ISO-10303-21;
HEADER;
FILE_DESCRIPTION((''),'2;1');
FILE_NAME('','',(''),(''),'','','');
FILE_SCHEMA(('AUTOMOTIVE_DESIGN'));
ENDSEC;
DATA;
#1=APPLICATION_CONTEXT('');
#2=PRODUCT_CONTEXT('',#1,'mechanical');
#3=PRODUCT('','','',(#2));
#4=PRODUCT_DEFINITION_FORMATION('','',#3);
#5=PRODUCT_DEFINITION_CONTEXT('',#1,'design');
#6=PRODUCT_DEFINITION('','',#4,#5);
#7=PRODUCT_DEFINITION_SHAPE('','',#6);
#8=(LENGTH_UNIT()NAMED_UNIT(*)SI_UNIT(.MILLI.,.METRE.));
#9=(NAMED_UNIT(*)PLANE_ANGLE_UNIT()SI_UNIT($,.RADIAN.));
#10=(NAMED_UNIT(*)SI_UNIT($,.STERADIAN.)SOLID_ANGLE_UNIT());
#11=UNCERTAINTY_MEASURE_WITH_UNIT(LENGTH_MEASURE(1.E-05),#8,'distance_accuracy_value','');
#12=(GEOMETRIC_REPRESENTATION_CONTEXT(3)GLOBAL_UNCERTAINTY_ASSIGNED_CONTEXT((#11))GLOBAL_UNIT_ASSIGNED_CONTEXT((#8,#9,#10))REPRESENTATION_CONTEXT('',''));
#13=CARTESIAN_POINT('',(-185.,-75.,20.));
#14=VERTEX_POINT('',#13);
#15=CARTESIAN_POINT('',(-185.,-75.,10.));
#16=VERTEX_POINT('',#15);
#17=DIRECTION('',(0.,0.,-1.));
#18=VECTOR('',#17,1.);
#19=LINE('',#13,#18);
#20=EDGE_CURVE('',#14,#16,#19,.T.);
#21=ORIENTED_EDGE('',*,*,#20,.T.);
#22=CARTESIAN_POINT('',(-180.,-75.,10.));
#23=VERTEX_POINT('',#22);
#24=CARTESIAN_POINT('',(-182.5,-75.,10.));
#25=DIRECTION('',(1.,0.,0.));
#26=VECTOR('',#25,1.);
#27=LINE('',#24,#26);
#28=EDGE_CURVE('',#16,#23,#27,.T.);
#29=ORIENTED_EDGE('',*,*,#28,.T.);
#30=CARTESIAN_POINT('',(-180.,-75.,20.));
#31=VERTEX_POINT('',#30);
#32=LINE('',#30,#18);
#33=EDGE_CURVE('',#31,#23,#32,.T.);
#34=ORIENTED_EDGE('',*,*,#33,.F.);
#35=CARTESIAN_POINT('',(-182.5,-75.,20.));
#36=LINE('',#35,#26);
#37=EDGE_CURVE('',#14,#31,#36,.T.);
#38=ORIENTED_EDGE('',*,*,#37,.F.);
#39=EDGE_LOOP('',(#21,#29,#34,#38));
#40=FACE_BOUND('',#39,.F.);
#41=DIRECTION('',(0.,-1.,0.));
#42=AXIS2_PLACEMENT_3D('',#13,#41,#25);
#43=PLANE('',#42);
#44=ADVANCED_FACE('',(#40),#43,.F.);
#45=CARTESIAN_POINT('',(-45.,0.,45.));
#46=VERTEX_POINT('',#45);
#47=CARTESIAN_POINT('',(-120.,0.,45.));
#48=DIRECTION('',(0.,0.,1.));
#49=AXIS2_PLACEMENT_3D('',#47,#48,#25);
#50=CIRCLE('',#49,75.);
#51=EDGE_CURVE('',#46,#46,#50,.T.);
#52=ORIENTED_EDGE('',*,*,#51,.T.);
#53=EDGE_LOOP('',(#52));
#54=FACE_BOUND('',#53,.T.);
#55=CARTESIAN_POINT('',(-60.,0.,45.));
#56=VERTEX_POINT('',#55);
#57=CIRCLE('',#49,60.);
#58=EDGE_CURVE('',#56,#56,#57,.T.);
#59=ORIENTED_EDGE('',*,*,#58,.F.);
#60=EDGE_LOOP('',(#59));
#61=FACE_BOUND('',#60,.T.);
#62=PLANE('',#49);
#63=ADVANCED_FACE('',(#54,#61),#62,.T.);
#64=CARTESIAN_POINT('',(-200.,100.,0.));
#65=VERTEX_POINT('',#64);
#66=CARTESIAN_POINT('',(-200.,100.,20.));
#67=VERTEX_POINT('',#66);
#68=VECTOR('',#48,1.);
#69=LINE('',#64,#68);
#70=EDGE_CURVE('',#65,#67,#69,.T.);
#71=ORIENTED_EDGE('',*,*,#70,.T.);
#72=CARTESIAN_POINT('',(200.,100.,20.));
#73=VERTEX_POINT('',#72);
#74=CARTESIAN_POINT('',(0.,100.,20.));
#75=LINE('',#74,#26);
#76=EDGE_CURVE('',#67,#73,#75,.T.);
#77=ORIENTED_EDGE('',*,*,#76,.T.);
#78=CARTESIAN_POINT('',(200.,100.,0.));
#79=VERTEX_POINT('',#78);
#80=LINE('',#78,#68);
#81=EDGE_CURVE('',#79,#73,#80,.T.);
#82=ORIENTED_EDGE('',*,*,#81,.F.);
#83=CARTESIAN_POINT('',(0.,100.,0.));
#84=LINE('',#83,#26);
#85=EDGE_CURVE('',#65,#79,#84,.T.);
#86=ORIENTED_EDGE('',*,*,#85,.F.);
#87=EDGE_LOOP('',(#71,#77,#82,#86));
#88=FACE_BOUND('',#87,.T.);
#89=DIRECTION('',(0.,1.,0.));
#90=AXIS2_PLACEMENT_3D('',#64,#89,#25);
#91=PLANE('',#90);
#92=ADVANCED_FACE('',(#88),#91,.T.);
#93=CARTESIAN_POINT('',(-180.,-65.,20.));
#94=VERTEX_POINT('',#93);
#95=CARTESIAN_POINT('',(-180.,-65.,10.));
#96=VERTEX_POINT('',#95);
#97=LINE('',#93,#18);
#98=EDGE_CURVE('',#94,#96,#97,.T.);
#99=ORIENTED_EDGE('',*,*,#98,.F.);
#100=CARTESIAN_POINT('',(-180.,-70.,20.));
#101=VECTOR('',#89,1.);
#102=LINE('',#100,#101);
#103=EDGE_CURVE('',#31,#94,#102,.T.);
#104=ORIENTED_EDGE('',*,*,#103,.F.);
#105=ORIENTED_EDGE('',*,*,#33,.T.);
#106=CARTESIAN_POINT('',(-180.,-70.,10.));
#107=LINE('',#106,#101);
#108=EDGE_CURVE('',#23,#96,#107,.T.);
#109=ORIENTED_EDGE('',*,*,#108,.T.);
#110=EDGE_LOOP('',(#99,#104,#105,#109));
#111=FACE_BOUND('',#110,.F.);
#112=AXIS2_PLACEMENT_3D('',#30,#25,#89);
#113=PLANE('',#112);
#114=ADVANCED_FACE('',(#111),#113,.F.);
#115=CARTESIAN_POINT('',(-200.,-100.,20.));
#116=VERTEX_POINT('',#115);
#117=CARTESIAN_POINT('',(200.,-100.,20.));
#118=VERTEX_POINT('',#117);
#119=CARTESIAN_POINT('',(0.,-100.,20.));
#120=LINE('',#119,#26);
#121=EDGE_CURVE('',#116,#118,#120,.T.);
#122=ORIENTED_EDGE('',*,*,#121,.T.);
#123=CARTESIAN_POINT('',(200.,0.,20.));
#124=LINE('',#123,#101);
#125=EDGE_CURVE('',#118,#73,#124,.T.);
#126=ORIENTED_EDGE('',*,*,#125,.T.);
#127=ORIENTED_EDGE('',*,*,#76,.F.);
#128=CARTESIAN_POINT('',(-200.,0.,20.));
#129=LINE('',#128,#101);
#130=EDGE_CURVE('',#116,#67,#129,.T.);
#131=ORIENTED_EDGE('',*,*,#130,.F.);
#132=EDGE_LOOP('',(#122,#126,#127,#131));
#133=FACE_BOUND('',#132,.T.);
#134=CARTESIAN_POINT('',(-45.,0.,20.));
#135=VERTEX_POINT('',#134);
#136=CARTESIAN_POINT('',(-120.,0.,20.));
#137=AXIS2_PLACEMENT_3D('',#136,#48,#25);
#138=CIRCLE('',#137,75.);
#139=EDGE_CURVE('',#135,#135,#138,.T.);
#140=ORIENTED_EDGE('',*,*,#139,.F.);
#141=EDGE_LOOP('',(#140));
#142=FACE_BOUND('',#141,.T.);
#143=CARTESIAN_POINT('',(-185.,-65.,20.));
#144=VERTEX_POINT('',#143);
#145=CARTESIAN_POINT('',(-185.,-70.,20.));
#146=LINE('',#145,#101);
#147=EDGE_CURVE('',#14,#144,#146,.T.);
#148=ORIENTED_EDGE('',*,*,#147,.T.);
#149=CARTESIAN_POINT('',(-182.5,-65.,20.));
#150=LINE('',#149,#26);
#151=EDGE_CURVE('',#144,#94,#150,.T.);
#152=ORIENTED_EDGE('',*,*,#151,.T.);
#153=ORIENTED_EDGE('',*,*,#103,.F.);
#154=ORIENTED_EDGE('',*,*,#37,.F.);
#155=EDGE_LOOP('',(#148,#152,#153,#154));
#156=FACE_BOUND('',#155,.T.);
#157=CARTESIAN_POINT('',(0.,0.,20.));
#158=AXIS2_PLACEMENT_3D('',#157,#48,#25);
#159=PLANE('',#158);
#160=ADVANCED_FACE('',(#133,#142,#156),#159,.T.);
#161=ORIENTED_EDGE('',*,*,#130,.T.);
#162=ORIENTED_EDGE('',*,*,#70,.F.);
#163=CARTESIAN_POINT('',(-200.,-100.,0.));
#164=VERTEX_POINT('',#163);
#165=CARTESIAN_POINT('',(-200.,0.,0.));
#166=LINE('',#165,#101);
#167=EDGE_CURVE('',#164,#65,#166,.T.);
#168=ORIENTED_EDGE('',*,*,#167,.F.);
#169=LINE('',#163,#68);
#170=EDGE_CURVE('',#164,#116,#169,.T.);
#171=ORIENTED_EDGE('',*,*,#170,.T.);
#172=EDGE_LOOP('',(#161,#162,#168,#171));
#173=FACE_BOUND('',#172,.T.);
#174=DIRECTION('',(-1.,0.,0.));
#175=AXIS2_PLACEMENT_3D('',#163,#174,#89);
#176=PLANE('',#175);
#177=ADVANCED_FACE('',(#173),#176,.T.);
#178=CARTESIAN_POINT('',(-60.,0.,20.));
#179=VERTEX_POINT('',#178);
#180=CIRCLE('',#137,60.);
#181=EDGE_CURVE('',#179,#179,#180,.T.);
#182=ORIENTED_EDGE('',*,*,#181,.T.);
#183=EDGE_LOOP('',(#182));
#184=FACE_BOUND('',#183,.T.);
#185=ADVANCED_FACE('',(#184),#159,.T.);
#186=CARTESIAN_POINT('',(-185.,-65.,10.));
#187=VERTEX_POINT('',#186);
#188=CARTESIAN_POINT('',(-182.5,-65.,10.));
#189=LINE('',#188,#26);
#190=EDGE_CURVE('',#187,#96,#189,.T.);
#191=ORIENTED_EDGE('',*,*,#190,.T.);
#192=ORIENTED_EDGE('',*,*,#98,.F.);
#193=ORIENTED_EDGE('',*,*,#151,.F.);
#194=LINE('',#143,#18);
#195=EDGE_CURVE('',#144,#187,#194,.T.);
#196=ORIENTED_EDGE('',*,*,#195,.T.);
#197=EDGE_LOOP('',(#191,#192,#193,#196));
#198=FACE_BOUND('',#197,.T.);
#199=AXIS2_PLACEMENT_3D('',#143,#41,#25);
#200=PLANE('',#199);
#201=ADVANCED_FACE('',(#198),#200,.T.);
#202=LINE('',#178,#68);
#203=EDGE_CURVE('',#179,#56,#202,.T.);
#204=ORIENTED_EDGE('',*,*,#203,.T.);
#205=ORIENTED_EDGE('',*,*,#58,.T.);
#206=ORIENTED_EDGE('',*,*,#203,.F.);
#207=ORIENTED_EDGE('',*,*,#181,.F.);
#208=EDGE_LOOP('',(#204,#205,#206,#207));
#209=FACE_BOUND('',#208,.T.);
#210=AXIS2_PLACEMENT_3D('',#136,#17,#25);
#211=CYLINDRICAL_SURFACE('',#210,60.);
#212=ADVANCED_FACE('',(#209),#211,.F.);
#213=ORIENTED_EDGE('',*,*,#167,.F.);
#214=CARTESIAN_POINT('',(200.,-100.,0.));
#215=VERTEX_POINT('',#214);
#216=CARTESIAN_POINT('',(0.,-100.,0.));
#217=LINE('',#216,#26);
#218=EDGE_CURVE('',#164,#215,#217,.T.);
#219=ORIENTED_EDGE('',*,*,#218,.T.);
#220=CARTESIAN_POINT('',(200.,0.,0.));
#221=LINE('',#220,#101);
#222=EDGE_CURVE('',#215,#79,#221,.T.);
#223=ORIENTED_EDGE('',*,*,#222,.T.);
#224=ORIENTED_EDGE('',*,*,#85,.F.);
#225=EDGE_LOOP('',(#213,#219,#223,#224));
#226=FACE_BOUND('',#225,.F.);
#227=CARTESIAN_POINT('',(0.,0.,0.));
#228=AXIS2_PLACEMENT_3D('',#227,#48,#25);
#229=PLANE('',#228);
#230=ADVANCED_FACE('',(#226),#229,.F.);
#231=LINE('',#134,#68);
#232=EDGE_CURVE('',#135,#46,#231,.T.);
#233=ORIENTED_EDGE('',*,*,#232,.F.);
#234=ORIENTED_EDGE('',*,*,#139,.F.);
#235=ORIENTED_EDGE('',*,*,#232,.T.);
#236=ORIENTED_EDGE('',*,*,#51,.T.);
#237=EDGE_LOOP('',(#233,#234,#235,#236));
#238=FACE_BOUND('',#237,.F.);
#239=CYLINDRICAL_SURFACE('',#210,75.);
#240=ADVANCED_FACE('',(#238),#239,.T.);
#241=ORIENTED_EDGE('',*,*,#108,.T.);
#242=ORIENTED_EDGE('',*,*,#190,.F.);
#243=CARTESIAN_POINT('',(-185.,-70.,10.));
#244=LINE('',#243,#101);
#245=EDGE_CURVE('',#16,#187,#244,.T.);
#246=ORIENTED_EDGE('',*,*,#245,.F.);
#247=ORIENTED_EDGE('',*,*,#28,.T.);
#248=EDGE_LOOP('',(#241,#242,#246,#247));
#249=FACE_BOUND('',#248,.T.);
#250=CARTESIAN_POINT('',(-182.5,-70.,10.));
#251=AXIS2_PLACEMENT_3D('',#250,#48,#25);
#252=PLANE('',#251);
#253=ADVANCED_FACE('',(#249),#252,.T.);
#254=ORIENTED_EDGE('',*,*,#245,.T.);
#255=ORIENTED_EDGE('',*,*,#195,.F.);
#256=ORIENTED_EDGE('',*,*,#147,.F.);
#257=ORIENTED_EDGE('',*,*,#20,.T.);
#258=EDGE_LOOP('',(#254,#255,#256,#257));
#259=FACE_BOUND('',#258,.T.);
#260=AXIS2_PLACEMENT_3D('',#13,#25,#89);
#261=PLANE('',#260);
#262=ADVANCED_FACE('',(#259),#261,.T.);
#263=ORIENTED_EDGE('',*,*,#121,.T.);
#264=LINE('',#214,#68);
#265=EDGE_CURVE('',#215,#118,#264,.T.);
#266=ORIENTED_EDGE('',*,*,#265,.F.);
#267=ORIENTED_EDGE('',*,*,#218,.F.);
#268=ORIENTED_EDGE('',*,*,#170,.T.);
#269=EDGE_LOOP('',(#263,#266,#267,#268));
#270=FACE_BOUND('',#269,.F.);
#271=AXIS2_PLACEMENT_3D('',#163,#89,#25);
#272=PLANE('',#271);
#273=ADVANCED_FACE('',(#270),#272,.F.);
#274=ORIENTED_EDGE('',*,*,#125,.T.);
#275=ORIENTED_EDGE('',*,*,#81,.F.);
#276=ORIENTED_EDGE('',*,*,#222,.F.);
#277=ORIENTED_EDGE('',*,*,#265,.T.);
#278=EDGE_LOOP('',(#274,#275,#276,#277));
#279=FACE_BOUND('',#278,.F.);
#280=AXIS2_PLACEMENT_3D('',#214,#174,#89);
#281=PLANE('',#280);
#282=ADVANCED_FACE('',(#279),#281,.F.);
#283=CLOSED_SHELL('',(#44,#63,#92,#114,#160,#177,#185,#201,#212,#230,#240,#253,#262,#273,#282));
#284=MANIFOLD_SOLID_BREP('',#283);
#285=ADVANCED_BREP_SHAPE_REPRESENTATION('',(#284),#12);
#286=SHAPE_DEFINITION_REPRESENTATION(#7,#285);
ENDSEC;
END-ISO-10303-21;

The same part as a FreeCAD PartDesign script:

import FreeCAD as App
import Part
import Sketcher

V = App.Vector

doc = App.newDocument("Part")
body = doc.addObject("PartDesign::Body", "Body")

# Sketch on XY plane
sketch1 = body.newObject("Sketcher::SketchObject", "Sketch")
sketch1.AttachmentSupport = (doc.getObject("XY_Plane"), [""])
sketch1.MapMode = "FlatFace"
sketch1.addGeometry([
    Part.LineSegment(V(-200, 100, 0), V(-200, -100, 0)),
    Part.LineSegment(V(-200, -100, 0), V(200, -100, 0)),
    Part.LineSegment(V(200, -100, 0), V(200, 100, 0)),
    Part.LineSegment(V(200, 100, 0), V(-200, 100, 0)),
], False)
sketch1.addConstraint([
    Sketcher.Constraint("Coincident", 0, 2, 1, 1),
    Sketcher.Constraint("Coincident", 1, 2, 2, 1),
    Sketcher.Constraint("Coincident", 2, 2, 3, 1),
    Sketcher.Constraint("Coincident", 3, 2, 0, 1),
    Sketcher.Constraint("Vertical", 0),
    Sketcher.Constraint("Horizontal", 1),
    Sketcher.Constraint("Vertical", 2),
    Sketcher.Constraint("Horizontal", 3),
    Sketcher.Constraint("Symmetric", 0, 2, 2, 2, -1, 1),
    Sketcher.Constraint("DistanceX", 1, 1, 1, 2, 400.0),
    Sketcher.Constraint("DistanceY", 0, 2, 0, 1, 200.0),
])
pad1 = body.newObject("PartDesign::Pad", "Pad")
pad1.Profile = sketch1
pad1.Length = 20

# Sketch on XY plane
sketch2 = body.newObject("Sketcher::SketchObject", "Sketch001")
sketch2.AttachmentSupport = (doc.getObject("XY_Plane"), [""])
sketch2.MapMode = "FlatFace"
sketch2.AttachmentOffset = App.Placement(V(0, 0, 20), App.Rotation())
sketch2.addGeometry([
    Part.Circle(V(-120, 0, 0), V(0, 0, 1), 75),
    Part.Circle(V(-120, 0, 0), V(0, 0, 1), 60),
], False)
sketch2.addConstraint([
    Sketcher.Constraint("Coincident", 1, 3, 0, 3),
    Sketcher.Constraint("PointOnObject", 0, 3, -1),
    Sketcher.Constraint("Diameter", 0, 150.0),
    Sketcher.Constraint("Diameter", 1, 120.0),
    Sketcher.Constraint("DistanceX", 0, 3, -1, 1, 120.0),
])
pad2 = body.newObject("PartDesign::Pad", "Pad001")
pad2.Profile = sketch2
pad2.Length = 25

# Sketch on XY plane
sketch3 = body.newObject("Sketcher::SketchObject", "Sketch002")
sketch3.AttachmentSupport = (doc.getObject("XY_Plane"), [""])
sketch3.MapMode = "FlatFace"
sketch3.AttachmentOffset = App.Placement(V(0, 0, 20), App.Rotation())
sketch3.addGeometry([
    Part.LineSegment(V(-185, -65, 0), V(-185, -75, 0)),
    Part.LineSegment(V(-185, -75, 0), V(-180, -75, 0)),
    Part.LineSegment(V(-180, -75, 0), V(-180, -65, 0)),
    Part.LineSegment(V(-180, -65, 0), V(-185, -65, 0)),
], False)
sketch3.addConstraint([
    Sketcher.Constraint("Coincident", 0, 2, 1, 1),
    Sketcher.Constraint("Coincident", 1, 2, 2, 1),
    Sketcher.Constraint("Coincident", 2, 2, 3, 1),
    Sketcher.Constraint("Coincident", 3, 2, 0, 1),
    Sketcher.Constraint("Vertical", 0),
    Sketcher.Constraint("Horizontal", 1),
    Sketcher.Constraint("Vertical", 2),
    Sketcher.Constraint("Horizontal", 3),
    Sketcher.Constraint("DistanceX", 1, 1, 1, 2, 5.0),
    Sketcher.Constraint("DistanceY", 0, 2, 0, 1, 10.0),
    Sketcher.Constraint("DistanceX", 0, 2, -1, 1, 185.0),
    Sketcher.Constraint("DistanceY", 0, 2, -1, 1, 75.0),
])
pocket1 = body.newObject("PartDesign::Pocket", "Pocket")
pocket1.Profile = sketch3
pocket1.Length = 10

doc.recompute()
